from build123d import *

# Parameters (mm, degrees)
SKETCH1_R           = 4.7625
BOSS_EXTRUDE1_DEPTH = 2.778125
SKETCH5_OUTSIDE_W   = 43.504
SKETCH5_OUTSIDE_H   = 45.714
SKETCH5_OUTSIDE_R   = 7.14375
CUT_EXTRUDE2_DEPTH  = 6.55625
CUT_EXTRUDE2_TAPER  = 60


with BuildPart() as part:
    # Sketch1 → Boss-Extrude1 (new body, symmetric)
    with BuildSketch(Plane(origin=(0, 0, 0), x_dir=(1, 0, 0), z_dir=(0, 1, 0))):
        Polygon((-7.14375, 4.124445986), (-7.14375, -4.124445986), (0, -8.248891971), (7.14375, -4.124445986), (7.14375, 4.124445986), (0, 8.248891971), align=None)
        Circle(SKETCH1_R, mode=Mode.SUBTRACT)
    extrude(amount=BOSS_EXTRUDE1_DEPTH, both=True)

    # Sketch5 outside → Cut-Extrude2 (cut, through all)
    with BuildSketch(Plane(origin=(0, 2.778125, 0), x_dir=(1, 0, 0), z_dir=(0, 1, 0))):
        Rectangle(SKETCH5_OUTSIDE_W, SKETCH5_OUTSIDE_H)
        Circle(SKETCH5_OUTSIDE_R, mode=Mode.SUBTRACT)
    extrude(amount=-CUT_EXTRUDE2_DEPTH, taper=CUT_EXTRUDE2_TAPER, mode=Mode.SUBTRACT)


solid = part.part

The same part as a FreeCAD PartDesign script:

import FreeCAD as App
import Part
import Sketcher
Q = App.Units.Quantity

doc = App.newDocument("Part")
body = doc.addObject("PartDesign::Body", "Body")

# Sketch on XZ plane
sketch1 = body.newObject("Sketcher::SketchObject", "Sketch")
sketch1.AttachmentSupport = (doc.getObject("XZ_Plane"), [""])
sketch1.MapMode = "FlatFace"
sketch1.addGeometry(Part.LineSegment(App.Vector(-7.1, -4.1, 0), App.Vector(-7.1, 4.1, 0)), False)
sketch1.addGeometry(Part.LineSegment(App.Vector(-7.1, 4.1, 0), App.Vector(0, 8.2, 0)), False)
sketch1.addGeometry(Part.LineSegment(App.Vector(0, 8.2, 0), App.Vector(7.1, 4.1, 0)), False)
sketch1.addGeometry(Part.LineSegment(App.Vector(7.1, 4.1, 0), App.Vector(7.1, -4.1, 0)), False)
sketch1.addGeometry(Part.LineSegment(App.Vector(7.1, -4.1, 0), App.Vector(0, -8.2, 0)), False)
sketch1.addGeometry(Part.LineSegment(App.Vector(0, -8.2, 0), App.Vector(-7.1, -4.1, 0)), False)
sketch1.addGeometry(Part.Circle(App.Vector(0, 0, 0), App.Vector(0, 0, 1), 4.8), False)
sketch1.addConstraint(Sketcher.Constraint("Coincident", 0, 2, 1, 1))
sketch1.addConstraint(Sketcher.Constraint("Coincident", 1, 2, 2, 1))
sketch1.addConstraint(Sketcher.Constraint("Coincident", 2, 2, 3, 1))
sketch1.addConstraint(Sketcher.Constraint("Coincident", 3, 2, 4, 1))
sketch1.addConstraint(Sketcher.Constraint("Coincident", 4, 2, 5, 1))
sketch1.addConstraint(Sketcher.Constraint("Coincident", 5, 2, 0, 1))
sketch1.addConstraint(Sketcher.Constraint("Vertical", 0))
sketch1.addConstraint(Sketcher.Constraint("Vertical", 3))
sketch1.addConstraint(Sketcher.Constraint("Coincident", 6, 3, -1, 1))
sketch1.addConstraint(Sketcher.Constraint("Symmetric", 0, 2, 3, 2, -1, 1))
sketch1.addConstraint(Sketcher.Constraint("Symmetric", 1, 2, 4, 2, -1, 1))
sketch1.addConstraint(Sketcher.Constraint("PointOnObject", 1, 2, -2))
sketch1.addConstraint(Sketcher.Constraint("Parallel", 2, 5))
sketch1.addConstraint(Sketcher.Constraint("Horizontal", 0, 2, 2, 2))
sketch1.addConstraint(Sketcher.Constraint("Diameter", 6, Q("0.375 in")))
sketch1.addConstraint(Sketcher.Constraint("Angle", 1, Q("30 deg")))
sketch1.addConstraint(Sketcher.Constraint("DistanceX", 0, 2, -1, 1, Q("0.28125 in")))
sketch1.addConstraint(Sketcher.Constraint("DistanceY", 0, 1, 0, 2, Q("8.248892 mm")))
pad1 = body.newObject("PartDesign::Pad", "Pad")
pad1.Profile = sketch1
pad1.Length = Q("0.21875 in")
pad1.Midplane = True

# Sketch on XZ plane
sketch2 = body.newObject("Sketcher::SketchObject", "Sketch001")
sketch2.AttachmentSupport = (doc.getObject("XZ_Plane"), [""])
sketch2.MapMode = "FlatFace"
sketch2.AttachmentOffset = App.Placement(App.Vector(0, 0, -0.109375 * 25.4), App.Rotation())
sketch2.addGeometry(Part.LineSegment(App.Vector(-22, -23, 0), App.Vector(-22, 23, 0)), False)
sketch2.addGeometry(Part.LineSegment(App.Vector(-22, 23, 0), App.Vector(22, 23, 0)), False)
sketch2.addGeometry(Part.LineSegment(App.Vector(22, 23, 0), App.Vector(22, -23, 0)), False)
sketch2.addGeometry(Part.LineSegment(App.Vector(22, -23, 0), App.Vector(-22, -23, 0)), False)
sketch2.addGeometry(Part.Circle(App.Vector(0, 0, 0), App.Vector(0, 0, 1), 7), False)
sketch2.addConstraint(Sketcher.Constraint("Coincident", 0, 2, 1, 1))
sketch2.addConstraint(Sketcher.Constraint("Coincident", 1, 2, 2, 1))
sketch2.addConstraint(Sketcher.Constraint("Coincident", 2, 2, 3, 1))
sketch2.addConstraint(Sketcher.Constraint("Coincident", 3, 2, 0, 1))
sketch2.addConstraint(Sketcher.Constraint("Vertical", 0))
sketch2.addConstraint(Sketcher.Constraint("Horizontal", 1))
sketch2.addConstraint(Sketcher.Constraint("Vertical", 2))
sketch2.addConstraint(Sketcher.Constraint("Horizontal", 3))
sketch2.addConstraint(Sketcher.Constraint("Coincident", 4, 3, -1, 1))
sketch2.addConstraint(Sketcher.Constraint("Symmetric", 0, 2, 2, 2, -1, 1))
sketch2.addConstraint(Sketcher.Constraint("Diameter", 4, Q("0.5625 in")))
sketch2.addConstraint(Sketcher.Constraint("DistanceX", 1, 1, 1, 2, Q("43.504 mm")))
sketch2.addConstraint(Sketcher.Constraint("DistanceY", 0, 1, 0, 2, Q("45.714 mm")))
pocket1 = body.newObject("PartDesign::Pocket", "Pocket")
pocket1.Profile = sketch2
pocket1.Length = 6.55625
pocket1.Reversed = True
pocket1.TaperAngle = 60

doc.recompute()
